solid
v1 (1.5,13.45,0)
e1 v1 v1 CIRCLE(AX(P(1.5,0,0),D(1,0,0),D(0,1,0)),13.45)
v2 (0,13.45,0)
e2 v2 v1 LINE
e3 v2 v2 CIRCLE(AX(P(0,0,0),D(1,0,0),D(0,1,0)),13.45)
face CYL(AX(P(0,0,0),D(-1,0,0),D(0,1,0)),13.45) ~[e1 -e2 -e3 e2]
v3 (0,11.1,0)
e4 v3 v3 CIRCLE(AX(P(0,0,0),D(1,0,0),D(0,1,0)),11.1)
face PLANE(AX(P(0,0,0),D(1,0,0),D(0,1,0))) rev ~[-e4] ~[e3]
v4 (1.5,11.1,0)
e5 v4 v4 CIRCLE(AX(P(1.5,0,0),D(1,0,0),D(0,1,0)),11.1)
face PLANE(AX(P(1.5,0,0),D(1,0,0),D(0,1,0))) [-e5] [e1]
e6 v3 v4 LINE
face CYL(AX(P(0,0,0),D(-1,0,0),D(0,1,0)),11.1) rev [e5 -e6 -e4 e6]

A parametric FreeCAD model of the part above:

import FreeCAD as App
import Part
import Sketcher

V = App.Vector
Q = App.Units.Quantity

doc = App.newDocument("Part")
body = doc.addObject("PartDesign::Body", "Body")

# Sketch on YZ plane
sketch1 = body.newObject("Sketcher::SketchObject", "Sketch")
sketch1.AttachmentSupport = (doc.getObject("YZ_Plane"), [""])
sketch1.MapMode = "FlatFace"
sketch1.addGeometry([
    Part.Circle(V(0, 0, 0), V(0, 0, 1), 13),
    Part.Circle(V(0, 0, 0), V(0, 0, 1), 11),
], False)
sketch1.addConstraint([
    Sketcher.Constraint("Coincident", 0, 3, -1, 1),
    Sketcher.Constraint("Coincident", 1, 3, -1, 1),
    Sketcher.Constraint("Diameter", 0, Q("26.9 mm")),
    Sketcher.Constraint("Diameter", 1, Q("22.2 mm")),
])
pad1 = body.newObject("PartDesign::Pad", "Pad")
pad1.Profile = sketch1
pad1.Length = 1.5

doc.recompute()
